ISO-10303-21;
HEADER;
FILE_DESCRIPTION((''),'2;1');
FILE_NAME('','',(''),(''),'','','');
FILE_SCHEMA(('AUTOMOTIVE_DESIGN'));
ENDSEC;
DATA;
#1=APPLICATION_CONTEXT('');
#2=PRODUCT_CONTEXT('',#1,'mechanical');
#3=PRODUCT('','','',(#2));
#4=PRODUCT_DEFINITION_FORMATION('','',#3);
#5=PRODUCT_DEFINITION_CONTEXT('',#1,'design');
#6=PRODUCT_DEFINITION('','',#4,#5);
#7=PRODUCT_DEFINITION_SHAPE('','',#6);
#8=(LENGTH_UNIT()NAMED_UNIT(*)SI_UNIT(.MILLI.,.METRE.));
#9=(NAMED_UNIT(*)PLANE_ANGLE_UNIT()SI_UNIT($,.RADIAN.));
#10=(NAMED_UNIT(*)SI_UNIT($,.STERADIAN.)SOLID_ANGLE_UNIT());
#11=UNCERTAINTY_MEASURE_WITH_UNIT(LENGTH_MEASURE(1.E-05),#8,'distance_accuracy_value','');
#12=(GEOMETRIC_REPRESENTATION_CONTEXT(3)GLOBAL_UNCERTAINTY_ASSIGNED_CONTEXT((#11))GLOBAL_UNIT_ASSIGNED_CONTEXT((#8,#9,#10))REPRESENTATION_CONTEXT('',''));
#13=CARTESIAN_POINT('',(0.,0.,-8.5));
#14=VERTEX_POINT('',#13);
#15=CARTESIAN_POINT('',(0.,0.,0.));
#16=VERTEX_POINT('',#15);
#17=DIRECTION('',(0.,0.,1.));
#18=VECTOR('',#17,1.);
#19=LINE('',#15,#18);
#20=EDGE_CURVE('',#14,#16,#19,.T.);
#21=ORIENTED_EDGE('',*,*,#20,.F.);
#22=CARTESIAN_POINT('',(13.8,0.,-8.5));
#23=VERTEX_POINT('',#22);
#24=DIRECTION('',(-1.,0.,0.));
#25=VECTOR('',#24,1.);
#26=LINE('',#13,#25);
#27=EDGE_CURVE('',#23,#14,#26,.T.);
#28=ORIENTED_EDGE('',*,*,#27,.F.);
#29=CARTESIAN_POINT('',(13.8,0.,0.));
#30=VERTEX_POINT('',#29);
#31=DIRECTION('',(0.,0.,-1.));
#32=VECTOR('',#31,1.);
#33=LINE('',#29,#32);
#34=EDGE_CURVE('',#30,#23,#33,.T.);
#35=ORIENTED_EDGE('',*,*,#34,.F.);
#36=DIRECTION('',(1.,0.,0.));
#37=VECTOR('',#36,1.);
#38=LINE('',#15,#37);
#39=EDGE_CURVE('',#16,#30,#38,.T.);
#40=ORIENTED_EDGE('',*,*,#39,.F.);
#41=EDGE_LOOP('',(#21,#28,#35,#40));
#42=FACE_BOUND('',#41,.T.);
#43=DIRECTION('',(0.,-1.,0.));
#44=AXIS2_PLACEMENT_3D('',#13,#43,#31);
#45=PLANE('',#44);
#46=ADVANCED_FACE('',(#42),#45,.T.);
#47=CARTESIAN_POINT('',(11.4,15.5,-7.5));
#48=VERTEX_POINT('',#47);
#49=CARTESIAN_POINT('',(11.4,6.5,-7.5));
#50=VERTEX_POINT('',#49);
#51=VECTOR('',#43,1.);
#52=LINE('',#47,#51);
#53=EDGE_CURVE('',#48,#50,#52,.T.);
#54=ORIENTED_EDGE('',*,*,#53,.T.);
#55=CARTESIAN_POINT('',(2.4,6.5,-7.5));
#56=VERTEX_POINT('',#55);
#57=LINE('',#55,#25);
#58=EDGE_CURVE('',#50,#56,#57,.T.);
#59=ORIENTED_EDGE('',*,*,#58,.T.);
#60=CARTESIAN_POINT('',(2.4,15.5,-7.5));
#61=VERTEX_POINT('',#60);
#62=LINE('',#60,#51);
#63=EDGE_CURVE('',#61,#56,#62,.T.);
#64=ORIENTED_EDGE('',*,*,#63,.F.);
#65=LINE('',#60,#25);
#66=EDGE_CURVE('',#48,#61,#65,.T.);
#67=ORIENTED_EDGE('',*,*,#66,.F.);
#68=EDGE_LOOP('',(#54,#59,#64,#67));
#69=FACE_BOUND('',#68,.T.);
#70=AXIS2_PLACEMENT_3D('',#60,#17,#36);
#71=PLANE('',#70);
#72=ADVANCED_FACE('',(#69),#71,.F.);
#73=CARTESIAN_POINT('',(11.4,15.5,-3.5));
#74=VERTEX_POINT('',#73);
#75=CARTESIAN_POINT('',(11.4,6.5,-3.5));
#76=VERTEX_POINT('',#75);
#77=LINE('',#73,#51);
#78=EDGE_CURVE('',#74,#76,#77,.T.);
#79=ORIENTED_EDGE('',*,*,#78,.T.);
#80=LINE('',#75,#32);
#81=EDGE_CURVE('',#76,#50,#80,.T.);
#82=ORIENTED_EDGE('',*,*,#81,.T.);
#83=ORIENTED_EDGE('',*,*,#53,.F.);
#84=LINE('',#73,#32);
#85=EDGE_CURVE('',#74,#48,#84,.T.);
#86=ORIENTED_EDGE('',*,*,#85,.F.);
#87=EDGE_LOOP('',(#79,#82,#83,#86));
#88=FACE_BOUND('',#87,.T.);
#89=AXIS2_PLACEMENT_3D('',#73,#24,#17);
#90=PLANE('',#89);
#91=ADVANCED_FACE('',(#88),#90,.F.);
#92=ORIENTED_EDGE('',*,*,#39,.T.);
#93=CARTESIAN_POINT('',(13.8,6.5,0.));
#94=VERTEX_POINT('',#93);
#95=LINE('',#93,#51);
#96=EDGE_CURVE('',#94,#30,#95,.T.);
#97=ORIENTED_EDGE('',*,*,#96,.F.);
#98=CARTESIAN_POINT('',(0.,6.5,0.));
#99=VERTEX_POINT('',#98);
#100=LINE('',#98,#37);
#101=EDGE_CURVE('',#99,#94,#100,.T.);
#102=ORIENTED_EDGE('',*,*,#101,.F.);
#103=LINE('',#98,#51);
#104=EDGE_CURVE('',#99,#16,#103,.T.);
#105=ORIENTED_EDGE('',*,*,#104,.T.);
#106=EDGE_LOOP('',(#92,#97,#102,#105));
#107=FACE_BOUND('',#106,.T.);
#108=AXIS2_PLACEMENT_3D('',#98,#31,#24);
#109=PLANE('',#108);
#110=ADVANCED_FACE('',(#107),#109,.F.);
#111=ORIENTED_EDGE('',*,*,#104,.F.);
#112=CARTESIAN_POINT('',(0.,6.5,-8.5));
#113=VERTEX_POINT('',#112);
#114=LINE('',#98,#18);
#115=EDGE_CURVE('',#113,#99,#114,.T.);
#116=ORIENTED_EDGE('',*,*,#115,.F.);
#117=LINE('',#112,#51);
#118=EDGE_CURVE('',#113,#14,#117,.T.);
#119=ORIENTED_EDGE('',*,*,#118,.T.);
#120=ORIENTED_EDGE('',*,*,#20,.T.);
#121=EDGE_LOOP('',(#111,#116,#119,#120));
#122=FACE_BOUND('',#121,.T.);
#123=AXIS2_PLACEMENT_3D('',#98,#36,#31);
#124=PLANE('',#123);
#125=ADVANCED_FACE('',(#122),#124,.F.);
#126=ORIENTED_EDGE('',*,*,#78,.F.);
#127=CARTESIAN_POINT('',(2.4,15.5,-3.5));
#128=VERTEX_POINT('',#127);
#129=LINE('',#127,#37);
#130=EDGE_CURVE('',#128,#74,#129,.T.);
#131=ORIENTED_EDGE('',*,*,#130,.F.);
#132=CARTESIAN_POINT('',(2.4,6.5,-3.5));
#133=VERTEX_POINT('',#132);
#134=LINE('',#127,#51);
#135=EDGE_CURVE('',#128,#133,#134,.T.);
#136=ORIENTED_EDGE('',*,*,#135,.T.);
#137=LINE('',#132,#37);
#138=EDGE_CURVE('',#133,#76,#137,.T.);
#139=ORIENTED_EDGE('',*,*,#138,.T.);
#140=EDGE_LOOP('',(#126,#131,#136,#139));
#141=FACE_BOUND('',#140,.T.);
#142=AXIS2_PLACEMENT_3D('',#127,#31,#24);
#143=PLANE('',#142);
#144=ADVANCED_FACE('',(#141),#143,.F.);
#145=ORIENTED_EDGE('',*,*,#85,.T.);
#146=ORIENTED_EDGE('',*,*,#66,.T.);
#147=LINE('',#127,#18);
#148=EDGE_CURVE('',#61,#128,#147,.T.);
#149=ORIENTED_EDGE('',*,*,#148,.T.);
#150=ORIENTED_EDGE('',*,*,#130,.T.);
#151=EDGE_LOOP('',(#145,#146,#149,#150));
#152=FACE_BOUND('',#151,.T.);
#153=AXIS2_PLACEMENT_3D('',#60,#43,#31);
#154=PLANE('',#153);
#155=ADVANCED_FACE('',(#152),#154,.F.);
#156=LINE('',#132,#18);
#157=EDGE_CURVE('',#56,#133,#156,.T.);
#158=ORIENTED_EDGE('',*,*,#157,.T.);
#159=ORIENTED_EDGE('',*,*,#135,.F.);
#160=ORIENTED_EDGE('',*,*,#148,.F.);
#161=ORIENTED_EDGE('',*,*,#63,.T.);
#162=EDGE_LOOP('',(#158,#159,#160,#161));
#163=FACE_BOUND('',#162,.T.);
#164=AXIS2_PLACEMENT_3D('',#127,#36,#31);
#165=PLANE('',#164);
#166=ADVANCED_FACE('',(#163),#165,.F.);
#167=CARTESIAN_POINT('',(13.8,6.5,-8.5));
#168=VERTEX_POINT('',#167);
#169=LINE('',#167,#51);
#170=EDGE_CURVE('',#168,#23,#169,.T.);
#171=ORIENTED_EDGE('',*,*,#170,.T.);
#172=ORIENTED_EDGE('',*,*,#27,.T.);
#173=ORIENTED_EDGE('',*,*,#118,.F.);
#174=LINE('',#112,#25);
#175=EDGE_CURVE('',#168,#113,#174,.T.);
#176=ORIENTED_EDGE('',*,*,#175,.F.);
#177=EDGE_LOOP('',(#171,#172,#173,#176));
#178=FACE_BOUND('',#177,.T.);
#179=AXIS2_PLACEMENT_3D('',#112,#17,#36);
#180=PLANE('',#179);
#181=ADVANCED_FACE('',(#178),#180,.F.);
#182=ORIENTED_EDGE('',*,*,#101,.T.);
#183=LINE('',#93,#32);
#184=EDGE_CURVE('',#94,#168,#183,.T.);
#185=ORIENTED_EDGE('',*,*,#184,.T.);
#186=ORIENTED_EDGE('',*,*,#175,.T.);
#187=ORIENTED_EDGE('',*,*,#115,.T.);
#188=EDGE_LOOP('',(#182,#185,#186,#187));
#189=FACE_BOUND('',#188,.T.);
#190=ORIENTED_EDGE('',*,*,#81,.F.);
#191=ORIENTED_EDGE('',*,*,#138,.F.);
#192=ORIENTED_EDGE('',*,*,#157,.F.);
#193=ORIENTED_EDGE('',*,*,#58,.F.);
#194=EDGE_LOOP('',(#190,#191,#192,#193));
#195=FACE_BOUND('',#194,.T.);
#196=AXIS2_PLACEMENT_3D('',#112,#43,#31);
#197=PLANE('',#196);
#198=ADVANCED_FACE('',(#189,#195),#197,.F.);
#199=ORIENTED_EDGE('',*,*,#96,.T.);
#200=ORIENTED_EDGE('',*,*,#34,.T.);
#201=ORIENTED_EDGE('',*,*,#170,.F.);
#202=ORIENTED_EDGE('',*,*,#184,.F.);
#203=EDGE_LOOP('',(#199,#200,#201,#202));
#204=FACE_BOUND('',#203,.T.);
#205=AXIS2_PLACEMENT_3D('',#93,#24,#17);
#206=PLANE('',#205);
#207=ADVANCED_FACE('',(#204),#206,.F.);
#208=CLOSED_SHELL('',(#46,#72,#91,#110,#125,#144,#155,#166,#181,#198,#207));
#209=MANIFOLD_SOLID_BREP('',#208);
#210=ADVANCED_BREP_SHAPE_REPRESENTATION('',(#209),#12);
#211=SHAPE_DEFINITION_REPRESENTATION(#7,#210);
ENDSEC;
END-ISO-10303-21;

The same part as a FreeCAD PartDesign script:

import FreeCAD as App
import Part
import Sketcher
Q = App.Units.Quantity

doc = App.newDocument("Part")
body = doc.addObject("PartDesign::Body", "Body")

# Sketch on XZ plane
sketch1 = doc.addObject("Sketcher::SketchObject", "Sketch")
body.addObject(sketch1)
sketch1.AttachmentSupport = (doc.XZ_Plane, [""])
sketch1.MapMode = "FlatFace"
sketch1.addGeometry(Part.LineSegment(App.Vector(0, -8, 0), App.Vector(0, 0, 0)), False)
sketch1.addGeometry(Part.LineSegment(App.Vector(0, 0, 0), App.Vector(14, 0, 0)), False)
sketch1.addGeometry(Part.LineSegment(App.Vector(14, 0, 0), App.Vector(14, -8, 0)), False)
sketch1.addGeometry(Part.LineSegment(App.Vector(14, -8, 0), App.Vector(0, -8, 0)), False)
sketch1.addConstraint(Sketcher.Constraint("Coincident", 0, 2, 1, 1))
sketch1.addConstraint(Sketcher.Constraint("Coincident", 1, 2, 2, 1))
sketch1.addConstraint(Sketcher.Constraint("Coincident", 2, 2, 3, 1))
sketch1.addConstraint(Sketcher.Constraint("Coincident", 3, 2, 0, 1))
sketch1.addConstraint(Sketcher.Constraint("Vertical", 0))
sketch1.addConstraint(Sketcher.Constraint("Horizontal", 1))
sketch1.addConstraint(Sketcher.Constraint("Vertical", 2))
sketch1.addConstraint(Sketcher.Constraint("Horizontal", 3))
sketch1.addConstraint(Sketcher.Constraint("Coincident", 0, 2, -1, 1))
sketch1.addConstraint(Sketcher.Constraint("DistanceX", 1, 1, 1, 2, Q("13.8 mm")))
sketch1.addConstraint(Sketcher.Constraint("DistanceY", 0, 1, 0, 2, Q("8.5 mm")))
pad1 = doc.addObject("PartDesign::Pad", "Pad")
body.addObject(pad1)
pad1.Profile = sketch1
pad1.Length = 6.5
pad1.Reversed = True

# Sketch on XZ plane
sketch2 = doc.addObject("Sketcher::SketchObject", "Sketch001")
body.addObject(sketch2)
sketch2.AttachmentSupport = (doc.XZ_Plane, [""])
sketch2.MapMode = "FlatFace"
sketch2.AttachmentOffset = App.Placement(App.Vector(0, 0, -6.5), App.Rotation())
sketch2.addGeometry(Part.LineSegment(App.Vector(11.4, -3.5, 0), App.Vector(11.4, -7.5, 0)), False)
sketch2.addGeometry(Part.LineSegment(App.Vector(11.4, -7.5, 0), App.Vector(2.4, -7.5, 0)), False)
sketch2.addGeometry(Part.LineSegment(App.Vector(2.4, -7.5, 0), App.Vector(2.4, -3.5, 0)), False)
sketch2.addGeometry(Part.LineSegment(App.Vector(2.4, -3.5, 0), App.Vector(11.4, -3.5, 0)), False)
sketch2.addConstraint(Sketcher.Constraint("Coincident", 0, 2, 1, 1))
sketch2.addConstraint(Sketcher.Constraint("Coincident", 1, 2, 2, 1))
sketch2.addConstraint(Sketcher.Constraint("Coincident", 2, 2, 3, 1))
sketch2.addConstraint(Sketcher.Constraint("Coincident", 3, 2, 0, 1))
sketch2.addConstraint(Sketcher.Constraint("Vertical", 0))
sketch2.addConstraint(Sketcher.Constraint("Horizontal", 1))
sketch2.addConstraint(Sketcher.Constraint("Vertical", 2))
sketch2.addConstraint(Sketcher.Constraint("Horizontal", 3))
sketch2.addConstraint(Sketcher.Constraint("DistanceX", 1, 2, 1, 1, Q("9 mm")))
sketch2.addConstraint(Sketcher.Constraint("DistanceY", 0, 2, 0, 1, Q("4 mm")))
sketch2.addConstraint(Sketcher.Constraint("DistanceX", -1, 1, 0, 2, Q("11.4 mm")))
sketch2.addConstraint(Sketcher.Constraint("DistanceY", 0, 2, -1, 1, Q("7.5 mm")))
pad2 = doc.addObject("PartDesign::Pad", "Pad001")
body.addObject(pad2)
pad2.Profile = sketch2
pad2.Length = 9
pad2.Reversed = True

doc.recompute()
